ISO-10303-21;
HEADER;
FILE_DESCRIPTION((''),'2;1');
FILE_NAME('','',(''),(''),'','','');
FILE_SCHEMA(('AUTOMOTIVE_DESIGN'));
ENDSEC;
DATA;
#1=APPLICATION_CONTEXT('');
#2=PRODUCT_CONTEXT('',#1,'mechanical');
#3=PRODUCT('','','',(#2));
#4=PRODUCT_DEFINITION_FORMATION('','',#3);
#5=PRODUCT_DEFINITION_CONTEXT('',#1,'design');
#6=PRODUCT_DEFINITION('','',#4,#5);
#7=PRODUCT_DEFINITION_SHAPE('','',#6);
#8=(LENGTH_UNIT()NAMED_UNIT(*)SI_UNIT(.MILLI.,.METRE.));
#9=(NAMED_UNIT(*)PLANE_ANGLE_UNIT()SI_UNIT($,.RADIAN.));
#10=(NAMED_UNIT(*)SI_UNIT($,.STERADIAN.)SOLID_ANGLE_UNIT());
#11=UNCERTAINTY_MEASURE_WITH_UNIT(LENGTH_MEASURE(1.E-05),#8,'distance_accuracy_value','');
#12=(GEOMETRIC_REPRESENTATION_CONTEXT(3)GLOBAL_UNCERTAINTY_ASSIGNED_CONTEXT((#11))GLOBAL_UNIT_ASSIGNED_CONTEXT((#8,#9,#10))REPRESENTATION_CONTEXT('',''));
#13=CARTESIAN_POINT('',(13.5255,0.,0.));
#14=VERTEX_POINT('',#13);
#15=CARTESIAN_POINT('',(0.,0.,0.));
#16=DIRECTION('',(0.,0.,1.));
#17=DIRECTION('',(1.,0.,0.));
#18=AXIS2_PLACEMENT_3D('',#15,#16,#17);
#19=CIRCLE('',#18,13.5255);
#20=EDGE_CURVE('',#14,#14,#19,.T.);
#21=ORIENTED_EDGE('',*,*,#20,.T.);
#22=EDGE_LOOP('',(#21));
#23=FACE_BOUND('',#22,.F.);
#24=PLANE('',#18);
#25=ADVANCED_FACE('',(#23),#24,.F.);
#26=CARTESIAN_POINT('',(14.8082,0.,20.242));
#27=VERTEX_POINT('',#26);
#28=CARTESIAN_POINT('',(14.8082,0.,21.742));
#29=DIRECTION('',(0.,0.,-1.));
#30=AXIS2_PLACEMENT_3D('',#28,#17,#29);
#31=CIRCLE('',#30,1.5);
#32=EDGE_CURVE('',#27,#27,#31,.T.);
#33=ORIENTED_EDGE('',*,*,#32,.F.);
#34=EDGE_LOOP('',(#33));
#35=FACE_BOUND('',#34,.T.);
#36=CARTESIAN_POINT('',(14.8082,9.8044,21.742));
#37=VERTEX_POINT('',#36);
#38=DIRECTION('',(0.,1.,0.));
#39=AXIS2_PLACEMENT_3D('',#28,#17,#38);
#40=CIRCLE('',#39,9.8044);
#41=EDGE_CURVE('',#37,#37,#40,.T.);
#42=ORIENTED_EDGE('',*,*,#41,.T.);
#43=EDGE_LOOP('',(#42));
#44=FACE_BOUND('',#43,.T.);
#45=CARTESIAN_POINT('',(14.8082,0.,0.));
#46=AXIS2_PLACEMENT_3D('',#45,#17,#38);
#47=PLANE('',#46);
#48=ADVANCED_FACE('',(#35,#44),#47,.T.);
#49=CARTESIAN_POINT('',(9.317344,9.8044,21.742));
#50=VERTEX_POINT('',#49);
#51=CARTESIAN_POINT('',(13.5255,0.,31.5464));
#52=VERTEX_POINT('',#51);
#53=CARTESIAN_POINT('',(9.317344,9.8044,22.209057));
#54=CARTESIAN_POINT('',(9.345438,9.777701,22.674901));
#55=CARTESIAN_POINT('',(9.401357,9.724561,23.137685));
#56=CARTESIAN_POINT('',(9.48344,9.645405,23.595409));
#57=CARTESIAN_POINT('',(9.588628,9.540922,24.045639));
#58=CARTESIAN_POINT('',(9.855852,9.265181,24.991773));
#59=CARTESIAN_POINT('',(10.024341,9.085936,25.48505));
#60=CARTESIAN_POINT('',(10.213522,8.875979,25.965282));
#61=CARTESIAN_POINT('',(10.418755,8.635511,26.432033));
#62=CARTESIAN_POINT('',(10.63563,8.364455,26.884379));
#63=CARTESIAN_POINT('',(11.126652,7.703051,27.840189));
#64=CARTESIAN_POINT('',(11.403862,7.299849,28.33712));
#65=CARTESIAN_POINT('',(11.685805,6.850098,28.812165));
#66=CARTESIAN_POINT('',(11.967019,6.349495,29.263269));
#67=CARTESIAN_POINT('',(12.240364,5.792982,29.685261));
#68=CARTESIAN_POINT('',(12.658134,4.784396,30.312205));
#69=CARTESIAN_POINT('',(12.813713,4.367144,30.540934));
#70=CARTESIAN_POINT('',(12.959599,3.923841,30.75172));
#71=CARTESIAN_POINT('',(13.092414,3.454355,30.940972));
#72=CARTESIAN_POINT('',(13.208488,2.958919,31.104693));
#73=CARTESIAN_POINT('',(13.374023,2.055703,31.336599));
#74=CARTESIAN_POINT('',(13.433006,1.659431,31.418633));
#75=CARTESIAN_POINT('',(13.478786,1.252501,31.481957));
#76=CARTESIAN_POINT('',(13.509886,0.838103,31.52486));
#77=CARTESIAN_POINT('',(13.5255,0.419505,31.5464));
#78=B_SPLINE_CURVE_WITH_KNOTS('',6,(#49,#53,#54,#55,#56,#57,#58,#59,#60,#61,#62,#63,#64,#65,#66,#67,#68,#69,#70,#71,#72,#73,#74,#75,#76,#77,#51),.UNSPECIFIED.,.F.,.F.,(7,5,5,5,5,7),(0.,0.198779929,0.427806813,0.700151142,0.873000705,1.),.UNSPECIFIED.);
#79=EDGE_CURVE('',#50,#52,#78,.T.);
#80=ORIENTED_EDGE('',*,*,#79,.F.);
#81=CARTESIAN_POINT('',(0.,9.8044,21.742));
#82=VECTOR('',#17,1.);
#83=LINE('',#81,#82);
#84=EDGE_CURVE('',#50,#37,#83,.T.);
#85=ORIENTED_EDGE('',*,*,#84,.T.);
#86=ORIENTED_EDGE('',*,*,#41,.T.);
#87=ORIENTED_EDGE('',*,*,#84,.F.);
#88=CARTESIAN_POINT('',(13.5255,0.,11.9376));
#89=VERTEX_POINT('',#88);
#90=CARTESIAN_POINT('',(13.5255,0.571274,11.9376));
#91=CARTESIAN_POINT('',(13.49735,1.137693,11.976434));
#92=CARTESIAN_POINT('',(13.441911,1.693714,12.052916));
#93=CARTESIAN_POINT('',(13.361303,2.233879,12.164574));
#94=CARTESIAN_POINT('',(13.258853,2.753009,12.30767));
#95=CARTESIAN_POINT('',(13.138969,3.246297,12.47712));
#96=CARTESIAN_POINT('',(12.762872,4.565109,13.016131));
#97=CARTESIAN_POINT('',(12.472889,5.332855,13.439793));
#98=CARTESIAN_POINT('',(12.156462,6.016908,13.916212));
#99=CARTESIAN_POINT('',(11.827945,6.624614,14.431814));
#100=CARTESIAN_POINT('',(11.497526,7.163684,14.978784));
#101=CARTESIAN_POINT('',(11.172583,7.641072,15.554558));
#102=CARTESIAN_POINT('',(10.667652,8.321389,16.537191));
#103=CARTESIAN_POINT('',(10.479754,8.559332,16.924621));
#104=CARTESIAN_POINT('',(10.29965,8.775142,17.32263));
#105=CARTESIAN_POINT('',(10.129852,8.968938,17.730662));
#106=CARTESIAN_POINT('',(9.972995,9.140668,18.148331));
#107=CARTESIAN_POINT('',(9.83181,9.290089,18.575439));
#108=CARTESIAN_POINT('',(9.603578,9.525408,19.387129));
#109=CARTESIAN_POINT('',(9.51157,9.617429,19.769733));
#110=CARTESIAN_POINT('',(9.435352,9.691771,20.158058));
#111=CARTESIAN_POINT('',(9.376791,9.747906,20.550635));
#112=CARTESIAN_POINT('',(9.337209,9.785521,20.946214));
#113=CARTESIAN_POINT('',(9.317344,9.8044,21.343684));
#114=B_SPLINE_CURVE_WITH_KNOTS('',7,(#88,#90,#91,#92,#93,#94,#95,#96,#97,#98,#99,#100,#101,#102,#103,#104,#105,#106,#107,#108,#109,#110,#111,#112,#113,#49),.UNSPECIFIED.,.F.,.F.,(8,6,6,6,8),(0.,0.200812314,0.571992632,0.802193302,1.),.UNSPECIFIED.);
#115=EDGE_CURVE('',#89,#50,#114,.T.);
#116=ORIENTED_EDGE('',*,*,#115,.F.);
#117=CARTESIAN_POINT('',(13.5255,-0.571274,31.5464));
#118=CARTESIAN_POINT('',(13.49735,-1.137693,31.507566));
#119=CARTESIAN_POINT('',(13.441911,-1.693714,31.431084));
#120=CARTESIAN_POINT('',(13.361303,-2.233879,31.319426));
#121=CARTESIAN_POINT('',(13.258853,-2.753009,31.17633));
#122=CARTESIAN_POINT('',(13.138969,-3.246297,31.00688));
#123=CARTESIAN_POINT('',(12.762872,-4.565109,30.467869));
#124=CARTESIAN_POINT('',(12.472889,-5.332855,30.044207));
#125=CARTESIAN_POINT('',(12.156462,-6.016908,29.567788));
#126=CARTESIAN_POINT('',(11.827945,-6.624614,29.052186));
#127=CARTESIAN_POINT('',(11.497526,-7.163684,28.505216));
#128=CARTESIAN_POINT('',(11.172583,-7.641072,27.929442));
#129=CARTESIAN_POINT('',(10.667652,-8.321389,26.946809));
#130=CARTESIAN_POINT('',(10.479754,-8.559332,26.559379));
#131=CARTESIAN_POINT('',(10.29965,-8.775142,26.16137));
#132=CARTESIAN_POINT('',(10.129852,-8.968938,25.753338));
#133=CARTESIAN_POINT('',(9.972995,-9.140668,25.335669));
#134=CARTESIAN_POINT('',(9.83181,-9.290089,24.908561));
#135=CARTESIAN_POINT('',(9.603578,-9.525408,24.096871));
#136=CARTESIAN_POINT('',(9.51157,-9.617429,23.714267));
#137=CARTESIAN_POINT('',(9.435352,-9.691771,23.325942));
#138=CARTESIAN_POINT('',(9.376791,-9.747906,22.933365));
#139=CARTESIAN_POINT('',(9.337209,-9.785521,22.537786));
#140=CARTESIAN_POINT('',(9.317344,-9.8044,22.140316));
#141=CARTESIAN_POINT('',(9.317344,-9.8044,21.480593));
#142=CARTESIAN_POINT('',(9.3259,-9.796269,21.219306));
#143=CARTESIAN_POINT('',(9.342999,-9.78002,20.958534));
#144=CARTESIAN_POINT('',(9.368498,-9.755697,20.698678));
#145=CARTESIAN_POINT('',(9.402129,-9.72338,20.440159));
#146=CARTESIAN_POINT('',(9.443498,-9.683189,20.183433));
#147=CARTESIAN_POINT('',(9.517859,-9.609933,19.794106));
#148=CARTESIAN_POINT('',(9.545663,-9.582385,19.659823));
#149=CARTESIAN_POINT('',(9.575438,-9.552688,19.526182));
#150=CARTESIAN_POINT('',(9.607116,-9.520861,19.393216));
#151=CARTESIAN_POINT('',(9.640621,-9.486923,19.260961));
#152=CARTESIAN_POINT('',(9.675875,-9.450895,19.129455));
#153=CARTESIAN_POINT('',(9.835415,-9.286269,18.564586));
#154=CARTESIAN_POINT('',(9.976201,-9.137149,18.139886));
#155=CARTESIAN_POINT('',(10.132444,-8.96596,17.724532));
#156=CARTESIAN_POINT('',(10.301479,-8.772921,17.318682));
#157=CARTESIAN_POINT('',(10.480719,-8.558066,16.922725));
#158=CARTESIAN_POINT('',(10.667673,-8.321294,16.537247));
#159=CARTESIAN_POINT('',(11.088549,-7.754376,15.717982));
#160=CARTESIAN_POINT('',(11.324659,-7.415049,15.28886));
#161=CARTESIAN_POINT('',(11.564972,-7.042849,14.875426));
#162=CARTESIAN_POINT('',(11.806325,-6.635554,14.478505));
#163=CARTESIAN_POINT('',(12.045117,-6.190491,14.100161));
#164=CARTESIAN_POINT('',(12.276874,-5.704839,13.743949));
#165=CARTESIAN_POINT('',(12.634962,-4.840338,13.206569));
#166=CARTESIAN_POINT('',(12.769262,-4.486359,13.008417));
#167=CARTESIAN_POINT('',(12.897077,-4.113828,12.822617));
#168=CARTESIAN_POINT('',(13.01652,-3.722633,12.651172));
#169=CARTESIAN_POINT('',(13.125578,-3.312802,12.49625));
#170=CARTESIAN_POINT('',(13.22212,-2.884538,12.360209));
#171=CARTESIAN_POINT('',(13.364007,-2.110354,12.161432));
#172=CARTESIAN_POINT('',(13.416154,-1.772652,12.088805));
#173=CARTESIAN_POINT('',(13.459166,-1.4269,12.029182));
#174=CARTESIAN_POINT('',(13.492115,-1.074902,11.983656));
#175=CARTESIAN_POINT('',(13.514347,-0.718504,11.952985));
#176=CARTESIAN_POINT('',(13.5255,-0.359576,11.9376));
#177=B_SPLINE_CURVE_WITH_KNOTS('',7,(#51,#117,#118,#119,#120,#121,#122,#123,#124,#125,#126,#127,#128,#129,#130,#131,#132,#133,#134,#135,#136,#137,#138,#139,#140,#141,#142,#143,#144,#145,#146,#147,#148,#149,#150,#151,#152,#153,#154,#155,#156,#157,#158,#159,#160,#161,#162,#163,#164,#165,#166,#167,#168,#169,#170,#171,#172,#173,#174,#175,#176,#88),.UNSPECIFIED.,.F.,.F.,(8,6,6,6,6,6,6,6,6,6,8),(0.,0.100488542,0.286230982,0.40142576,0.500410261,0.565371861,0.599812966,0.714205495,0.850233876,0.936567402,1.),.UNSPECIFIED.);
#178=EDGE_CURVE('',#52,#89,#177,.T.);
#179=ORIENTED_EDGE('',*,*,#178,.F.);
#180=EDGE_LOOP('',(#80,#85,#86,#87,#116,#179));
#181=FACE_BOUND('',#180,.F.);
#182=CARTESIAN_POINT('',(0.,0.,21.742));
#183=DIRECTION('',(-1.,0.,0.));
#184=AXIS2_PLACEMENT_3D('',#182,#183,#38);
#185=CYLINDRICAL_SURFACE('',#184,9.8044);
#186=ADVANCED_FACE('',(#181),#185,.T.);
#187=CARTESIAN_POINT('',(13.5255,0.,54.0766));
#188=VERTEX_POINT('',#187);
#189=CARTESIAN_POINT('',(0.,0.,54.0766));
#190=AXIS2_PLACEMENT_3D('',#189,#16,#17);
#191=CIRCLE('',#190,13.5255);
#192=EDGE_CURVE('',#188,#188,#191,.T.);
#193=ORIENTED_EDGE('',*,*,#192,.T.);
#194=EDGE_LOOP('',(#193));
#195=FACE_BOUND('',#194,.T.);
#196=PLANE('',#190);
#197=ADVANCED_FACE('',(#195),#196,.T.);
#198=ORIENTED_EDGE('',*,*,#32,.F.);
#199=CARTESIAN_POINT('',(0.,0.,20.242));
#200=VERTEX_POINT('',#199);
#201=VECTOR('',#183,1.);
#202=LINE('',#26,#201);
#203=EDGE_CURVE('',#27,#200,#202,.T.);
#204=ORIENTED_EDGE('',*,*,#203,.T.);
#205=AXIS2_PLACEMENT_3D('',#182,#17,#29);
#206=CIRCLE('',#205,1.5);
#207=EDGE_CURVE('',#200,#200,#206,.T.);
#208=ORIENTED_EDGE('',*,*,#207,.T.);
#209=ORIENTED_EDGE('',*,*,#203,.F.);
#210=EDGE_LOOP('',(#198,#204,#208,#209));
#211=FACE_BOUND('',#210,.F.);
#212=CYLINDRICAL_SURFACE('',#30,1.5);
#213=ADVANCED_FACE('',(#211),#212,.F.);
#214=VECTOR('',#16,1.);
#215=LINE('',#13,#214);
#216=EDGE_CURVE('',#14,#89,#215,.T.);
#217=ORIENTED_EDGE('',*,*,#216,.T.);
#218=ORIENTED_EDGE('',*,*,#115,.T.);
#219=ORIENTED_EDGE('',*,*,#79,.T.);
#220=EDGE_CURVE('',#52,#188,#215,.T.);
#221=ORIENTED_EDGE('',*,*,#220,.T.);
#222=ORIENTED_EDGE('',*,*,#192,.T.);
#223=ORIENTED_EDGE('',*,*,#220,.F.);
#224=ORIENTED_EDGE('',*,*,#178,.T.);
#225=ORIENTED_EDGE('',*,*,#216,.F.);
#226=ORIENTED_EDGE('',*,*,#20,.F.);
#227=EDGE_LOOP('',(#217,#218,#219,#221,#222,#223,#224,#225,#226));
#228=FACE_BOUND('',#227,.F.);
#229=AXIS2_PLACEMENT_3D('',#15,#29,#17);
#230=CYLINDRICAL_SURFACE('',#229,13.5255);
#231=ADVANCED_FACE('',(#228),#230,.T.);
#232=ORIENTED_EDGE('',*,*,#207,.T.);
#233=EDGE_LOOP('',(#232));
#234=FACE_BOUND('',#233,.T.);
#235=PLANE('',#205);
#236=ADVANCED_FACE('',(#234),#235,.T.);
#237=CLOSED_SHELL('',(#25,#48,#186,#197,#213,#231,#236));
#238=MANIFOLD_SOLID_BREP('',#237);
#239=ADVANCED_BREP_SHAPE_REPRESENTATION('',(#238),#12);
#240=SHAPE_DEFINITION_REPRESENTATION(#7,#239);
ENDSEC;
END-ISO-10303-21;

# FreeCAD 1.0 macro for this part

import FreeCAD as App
import Part
import Sketcher

V = App.Vector
Q = App.Units.Quantity

doc = App.newDocument("Part")
params = doc.addObject("Spreadsheet::Sheet", "Params")
for row, (alias, value) in enumerate([
    ("sketch1_diameter", "1.065 in"),
    ("pad1_length", "2.129 in"),
    ("sketch2_diameter", "0.772 in"),
    ("pad2_length", "0.583 in"),
    ("pocket1_length", "0.583 in"),
], start=1):
    params.set(f"A{row}", alias)
    params.set(f"B{row}", "=" + value)
    params.setAlias(f"B{row}", alias)

body = doc.addObject("PartDesign::Body", "Body")

# Sketch on XY plane
sketch1 = body.newObject("Sketcher::SketchObject", "Sketch")
sketch1.AttachmentSupport = (doc.getObject("XY_Plane"), [""])
sketch1.MapMode = "FlatFace"
sketch1.addGeometry(Part.Circle(V(0, 0, 0), V(0, 0, 1), 14), False)
sketch1.addConstraint([
    Sketcher.Constraint("Coincident", 0, 3, -1, 1),
    Sketcher.Constraint("Diameter", 0, Q("1.065 in")),
])
sketch1.setExpression("Constraints[1]", "Params.sketch1_diameter")
pad1 = body.newObject("PartDesign::Pad", "Pad")
pad1.Profile = sketch1
pad1.setExpression("Length", "Params.pad1_length")

# Sketch on YZ plane
sketch2 = body.newObject("Sketcher::SketchObject", "Sketch001")
sketch2.AttachmentSupport = (doc.getObject("YZ_Plane"), [""])
sketch2.MapMode = "FlatFace"
sketch2.addGeometry(Part.Circle(V(0, 22, 0), V(0, 0, 1), 10), False)
sketch2.addConstraint([
    Sketcher.Constraint("PointOnObject", 0, 3, -2),
    Sketcher.Constraint("Diameter", 0, Q("0.772 in")),
    Sketcher.Constraint("DistanceY", -1, 1, 0, 3, Q("21.742 mm")),
])
sketch2.setExpression("Constraints[1]", "Params.sketch2_diameter")
pad2 = body.newObject("PartDesign::Pad", "Pad001")
pad2.Profile = sketch2
pad2.setExpression("Length", "Params.pad2_length")

# Sketch on YZ plane
sketch3 = body.newObject("Sketcher::SketchObject", "Sketch002")
sketch3.AttachmentSupport = (doc.getObject("YZ_Plane"), [""])
sketch3.MapMode = "FlatFace"
sketch3.AttachmentOffset = App.Placement(V(0, 0, 0.583 * 25.4), App.Rotation())
sketch3.addGeometry(Part.Circle(V(0, 21.7, 0), V(0, 0, 1), 1.5), False)
sketch3.addConstraint([
    Sketcher.Constraint("PointOnObject", 0, 3, -2),
    Sketcher.Constraint("Diameter", 0, Q("0.1181 in")),
    Sketcher.Constraint("DistanceY", -1, 1, 0, 3, Q("21.742 mm")),
])
pocket1 = body.newObject("PartDesign::Pocket", "Pocket")
pocket1.Profile = sketch3
pocket1.setExpression("Length", "Params.pocket1_length")

doc.recompute()
